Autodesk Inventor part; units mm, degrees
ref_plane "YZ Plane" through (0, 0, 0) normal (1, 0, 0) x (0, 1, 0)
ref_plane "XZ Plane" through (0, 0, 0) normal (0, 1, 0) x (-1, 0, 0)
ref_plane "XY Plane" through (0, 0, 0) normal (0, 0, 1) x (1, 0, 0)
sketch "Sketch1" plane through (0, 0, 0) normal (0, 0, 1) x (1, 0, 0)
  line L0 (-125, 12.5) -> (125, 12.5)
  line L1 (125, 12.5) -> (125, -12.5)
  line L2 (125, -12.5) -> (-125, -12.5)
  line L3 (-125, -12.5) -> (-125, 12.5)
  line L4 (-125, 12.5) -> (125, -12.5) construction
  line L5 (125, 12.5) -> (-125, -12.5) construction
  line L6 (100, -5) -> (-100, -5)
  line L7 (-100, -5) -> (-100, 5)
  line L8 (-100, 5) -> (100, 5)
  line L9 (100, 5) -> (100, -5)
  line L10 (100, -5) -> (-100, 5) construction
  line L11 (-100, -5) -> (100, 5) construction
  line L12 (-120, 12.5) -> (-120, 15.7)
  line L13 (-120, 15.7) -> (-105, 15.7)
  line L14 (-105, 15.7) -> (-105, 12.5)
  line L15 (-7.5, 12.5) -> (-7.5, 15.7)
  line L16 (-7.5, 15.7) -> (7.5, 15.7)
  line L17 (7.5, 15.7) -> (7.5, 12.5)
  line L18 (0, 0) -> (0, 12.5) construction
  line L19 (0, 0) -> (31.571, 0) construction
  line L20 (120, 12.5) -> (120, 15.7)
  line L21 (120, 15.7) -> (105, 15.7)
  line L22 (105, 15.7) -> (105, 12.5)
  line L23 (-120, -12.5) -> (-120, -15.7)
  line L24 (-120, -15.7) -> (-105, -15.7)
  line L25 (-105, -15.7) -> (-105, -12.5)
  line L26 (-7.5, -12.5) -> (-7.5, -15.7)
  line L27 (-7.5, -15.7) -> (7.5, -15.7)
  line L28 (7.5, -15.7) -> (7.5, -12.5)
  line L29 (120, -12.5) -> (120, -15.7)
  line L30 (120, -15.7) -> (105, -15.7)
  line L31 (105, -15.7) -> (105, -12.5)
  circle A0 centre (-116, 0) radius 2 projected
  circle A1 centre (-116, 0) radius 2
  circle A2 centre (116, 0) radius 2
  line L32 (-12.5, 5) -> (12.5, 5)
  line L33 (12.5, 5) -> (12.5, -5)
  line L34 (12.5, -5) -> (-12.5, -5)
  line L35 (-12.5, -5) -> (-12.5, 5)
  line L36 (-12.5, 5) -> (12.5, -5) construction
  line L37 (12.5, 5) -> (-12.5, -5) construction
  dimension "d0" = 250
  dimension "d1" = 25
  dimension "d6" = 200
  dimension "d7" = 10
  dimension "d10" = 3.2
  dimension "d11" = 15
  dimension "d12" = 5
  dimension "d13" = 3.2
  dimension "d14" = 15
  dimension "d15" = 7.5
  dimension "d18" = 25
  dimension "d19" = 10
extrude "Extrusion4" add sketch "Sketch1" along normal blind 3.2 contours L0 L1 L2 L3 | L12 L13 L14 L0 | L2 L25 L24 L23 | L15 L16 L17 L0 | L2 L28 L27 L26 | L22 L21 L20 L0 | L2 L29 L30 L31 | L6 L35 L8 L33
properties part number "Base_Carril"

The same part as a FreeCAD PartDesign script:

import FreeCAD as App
import Part
import Sketcher
Q = App.Units.Quantity

doc = App.newDocument("Part")
body = doc.addObject("PartDesign::Body", "Body")

sketch1 = body.newObject("Sketcher::SketchObject", "Sketch")
sketch1.AttachmentSupport = (doc.getObject("XY_Plane"), [""])
sketch1.MapMode = "FlatFace"
sketch1.addGeometry([
    Part.LineSegment(App.Vector(-120, 12.5, 0), App.Vector(-125, 12.5, 0)),
    Part.LineSegment(App.Vector(-125, 12.5, 0), App.Vector(-125, -12.5, 0)),
    Part.LineSegment(App.Vector(-125, -12.5, 0), App.Vector(-120, -12.5, 0)),
    Part.LineSegment(App.Vector(-120, -12.5, 0), App.Vector(-120, -15.7, 0)),
    Part.LineSegment(App.Vector(-120, -15.7, 0), App.Vector(-105, -15.7, 0)),
    Part.LineSegment(App.Vector(-105, -15.7, 0), App.Vector(-105, -12.5, 0)),
    Part.LineSegment(App.Vector(-105, -12.5, 0), App.Vector(-7.5, -12.5, 0)),
    Part.LineSegment(App.Vector(-7.5, -12.5, 0), App.Vector(-7.5, -15.7, 0)),
    Part.LineSegment(App.Vector(-7.5, -15.7, 0), App.Vector(7.5, -15.7, 0)),
    Part.LineSegment(App.Vector(7.5, -15.7, 0), App.Vector(7.5, -12.5, 0)),
    Part.LineSegment(App.Vector(7.5, -12.5, 0), App.Vector(105, -12.5, 0)),
    Part.LineSegment(App.Vector(105, -12.5, 0), App.Vector(105, -15.7, 0)),
    Part.LineSegment(App.Vector(105, -15.7, 0), App.Vector(120, -15.7, 0)),
    Part.LineSegment(App.Vector(120, -15.7, 0), App.Vector(120, -12.5, 0)),
    Part.LineSegment(App.Vector(120, -12.5, 0), App.Vector(125, -12.5, 0)),
    Part.LineSegment(App.Vector(125, -12.5, 0), App.Vector(125, 12.5, 0)),
    Part.LineSegment(App.Vector(125, 12.5, 0), App.Vector(120, 12.5, 0)),
    Part.LineSegment(App.Vector(120, 12.5, 0), App.Vector(120, 15.7, 0)),
    Part.LineSegment(App.Vector(120, 15.7, 0), App.Vector(105, 15.7, 0)),
    Part.LineSegment(App.Vector(105, 15.7, 0), App.Vector(105, 12.5, 0)),
    Part.LineSegment(App.Vector(105, 12.5, 0), App.Vector(7.5, 12.5, 0)),
    Part.LineSegment(App.Vector(7.5, 12.5, 0), App.Vector(7.5, 15.7, 0)),
    Part.LineSegment(App.Vector(7.5, 15.7, 0), App.Vector(-7.5, 15.7, 0)),
    Part.LineSegment(App.Vector(-7.5, 15.7, 0), App.Vector(-7.5, 12.5, 0)),
    Part.LineSegment(App.Vector(-7.5, 12.5, 0), App.Vector(-105, 12.5, 0)),
    Part.LineSegment(App.Vector(-105, 12.5, 0), App.Vector(-105, 15.7, 0)),
    Part.LineSegment(App.Vector(-105, 15.7, 0), App.Vector(-120, 15.7, 0)),
    Part.LineSegment(App.Vector(-120, 15.7, 0), App.Vector(-120, 12.5, 0)),
    Part.Circle(App.Vector(-116, 0, 0), App.Vector(0, 0, 1), 2),
    Part.LineSegment(App.Vector(100, 5, 0), App.Vector(100, -5, 0)),
    Part.LineSegment(App.Vector(100, -5, 0), App.Vector(12.5, -5, 0)),
    Part.LineSegment(App.Vector(12.5, -5, 0), App.Vector(12.5, 5, 0)),
    Part.LineSegment(App.Vector(12.5, 5, 0), App.Vector(100, 5, 0)),
    Part.LineSegment(App.Vector(-100, 5, 0), App.Vector(-12.5, 5, 0)),
    Part.LineSegment(App.Vector(-12.5, 5, 0), App.Vector(-12.5, -5, 0)),
    Part.LineSegment(App.Vector(-12.5, -5, 0), App.Vector(-100, -5, 0)),
    Part.LineSegment(App.Vector(-100, -5, 0), App.Vector(-100, 5, 0)),
    Part.Circle(App.Vector(116, 0, 0), App.Vector(0, 0, 1), 2),
], False)
sketch1.addConstraint([
    Sketcher.Constraint("Coincident", 0, 2, 1, 1),
    Sketcher.Constraint("Coincident", 1, 2, 2, 1),
    Sketcher.Constraint("Coincident", 2, 2, 3, 1),
    Sketcher.Constraint("Coincident", 3, 2, 4, 1),
    Sketcher.Constraint("Coincident", 4, 2, 5, 1),
    Sketcher.Constraint("Coincident", 5, 2, 6, 1),
    Sketcher.Constraint("Coincident", 6, 2, 7, 1),
    Sketcher.Constraint("Coincident", 7, 2, 8, 1),
    Sketcher.Constraint("Coincident", 8, 2, 9, 1),
    Sketcher.Constraint("Coincident", 9, 2, 10, 1),
    Sketcher.Constraint("Coincident", 10, 2, 11, 1),
    Sketcher.Constraint("Coincident", 11, 2, 12, 1),
    Sketcher.Constraint("Coincident", 12, 2, 13, 1),
    Sketcher.Constraint("Coincident", 13, 2, 14, 1),
    Sketcher.Constraint("Coincident", 14, 2, 15, 1),
    Sketcher.Constraint("Coincident", 15, 2, 16, 1),
    Sketcher.Constraint("Coincident", 16, 2, 17, 1),
    Sketcher.Constraint("Coincident", 17, 2, 18, 1),
    Sketcher.Constraint("Coincident", 18, 2, 19, 1),
    Sketcher.Constraint("Coincident", 19, 2, 20, 1),
    Sketcher.Constraint("Coincident", 20, 2, 21, 1),
    Sketcher.Constraint("Coincident", 21, 2, 22, 1),
    Sketcher.Constraint("Coincident", 22, 2, 23, 1),
    Sketcher.Constraint("Coincident", 23, 2, 24, 1),
    Sketcher.Constraint("Coincident", 24, 2, 25, 1),
    Sketcher.Constraint("Coincident", 25, 2, 26, 1),
    Sketcher.Constraint("Coincident", 26, 2, 27, 1),
    Sketcher.Constraint("Coincident", 27, 2, 0, 1),
    Sketcher.Constraint("Coincident", 29, 2, 30, 1),
    Sketcher.Constraint("Coincident", 30, 2, 31, 1),
    Sketcher.Constraint("Coincident", 31, 2, 32, 1),
    Sketcher.Constraint("Coincident", 32, 2, 29, 1),
    Sketcher.Constraint("Coincident", 33, 2, 34, 1),
    Sketcher.Constraint("Coincident", 34, 2, 35, 1),
    Sketcher.Constraint("Coincident", 35, 2, 36, 1),
    Sketcher.Constraint("Coincident", 36, 2, 33, 1),
    Sketcher.Constraint("Horizontal", 0),
    Sketcher.Constraint("Vertical", 1),
    Sketcher.Constraint("Horizontal", 2),
    Sketcher.Constraint("Vertical", 3),
    Sketcher.Constraint("Horizontal", 4),
    Sketcher.Constraint("Vertical", 5),
    Sketcher.Constraint("Horizontal", 6),
    Sketcher.Constraint("Vertical", 7),
    Sketcher.Constraint("Horizontal", 8),
    Sketcher.Constraint("Vertical", 9),
    Sketcher.Constraint("Horizontal", 10),
    Sketcher.Constraint("Vertical", 11),
    Sketcher.Constraint("Horizontal", 12),
    Sketcher.Constraint("Vertical", 13),
    Sketcher.Constraint("Horizontal", 14),
    Sketcher.Constraint("Vertical", 15),
    Sketcher.Constraint("Horizontal", 16),
    Sketcher.Constraint("Vertical", 17),
    Sketcher.Constraint("Horizontal", 18),
    Sketcher.Constraint("Vertical", 19),
    Sketcher.Constraint("Horizontal", 20),
    Sketcher.Constraint("Vertical", 21),
    Sketcher.Constraint("Horizontal", 22),
    Sketcher.Constraint("Vertical", 23),
    Sketcher.Constraint("Horizontal", 24),
    Sketcher.Constraint("Vertical", 25),
    Sketcher.Constraint("Horizontal", 26),
    Sketcher.Constraint("Vertical", 27),
    Sketcher.Constraint("Vertical", 29),
    Sketcher.Constraint("Horizontal", 30),
    Sketcher.Constraint("Vertical", 31),
    Sketcher.Constraint("Horizontal", 32),
    Sketcher.Constraint("Horizontal", 33),
    Sketcher.Constraint("Vertical", 34),
    Sketcher.Constraint("Horizontal", 35),
    Sketcher.Constraint("Vertical", 36),
    Sketcher.Constraint("Equal", 28, 37),
    Sketcher.Constraint("Symmetric", 28, 3, 37, 3, -1, 1),
    Sketcher.Constraint("Symmetric", 0, 2, 14, 2, -1, 1),
    Sketcher.Constraint("Symmetric", 2, 2, 16, 2, -1, 1),
    Sketcher.Constraint("Symmetric", 4, 2, 18, 2, -1, 1),
    Sketcher.Constraint("Symmetric", 6, 2, 20, 2, -1, 1),
    Sketcher.Constraint("Symmetric", 8, 2, 22, 2, -1, 1),
    Sketcher.Constraint("Symmetric", 10, 2, 24, 2, -1, 1),
    Sketcher.Constraint("Symmetric", 12, 2, 26, 2, -1, 1),
    Sketcher.Constraint("Symmetric", 30, 2, 33, 2, -1, 1),
    Sketcher.Constraint("Symmetric", 32, 2, 35, 2, -1, 1),
    Sketcher.Constraint("Symmetric", 6, 2, 9, 2, -2),
    Sketcher.Constraint("Symmetric", 4, 2, 11, 2, -2),
    Sketcher.Constraint("Symmetric", 2, 2, 13, 2, -2),
    Sketcher.Constraint("PointOnObject", 28, 3, -1),
    Sketcher.Constraint("Horizontal", 2, 2, 5, 2),
    Sketcher.Constraint("Horizontal", 4, 2, 7, 2),
    Sketcher.Constraint("Horizontal", 32, 2, 33, 2),
    Sketcher.Constraint("Equal", 4, 8),
    Sketcher.Constraint("DistanceX", 0, 2, 0, 1, Q("5 mm")),
    Sketcher.Constraint("DistanceX", 4, 1, 4, 2, Q("15 mm")),
    Sketcher.Constraint("DistanceY", 1, 2, 1, 1, Q("25 mm")),
    Sketcher.Constraint("DistanceY", 29, 2, 29, 1, Q("10 mm")),
    Sketcher.Constraint("Diameter", 28, Q("4 mm")),
    Sketcher.Constraint("DistanceY", 3, 2, 3, 1, Q("3.2 mm")),
    Sketcher.Constraint("DistanceX", 29, 2, 10, 2, Q("5 mm")),
    Sketcher.Constraint("DistanceX", 9, 2, 30, 2, Q("5 mm")),
    Sketcher.Constraint("DistanceX", 6, 1, 6, 2, Q("97.5 mm")),
    Sketcher.Constraint("DistanceX", 28, 3, -1, 1, Q("116 mm")),
])
pad1 = body.newObject("PartDesign::Pad", "Pad")
pad1.Profile = sketch1
pad1.Length = 3.2

doc.recompute()
